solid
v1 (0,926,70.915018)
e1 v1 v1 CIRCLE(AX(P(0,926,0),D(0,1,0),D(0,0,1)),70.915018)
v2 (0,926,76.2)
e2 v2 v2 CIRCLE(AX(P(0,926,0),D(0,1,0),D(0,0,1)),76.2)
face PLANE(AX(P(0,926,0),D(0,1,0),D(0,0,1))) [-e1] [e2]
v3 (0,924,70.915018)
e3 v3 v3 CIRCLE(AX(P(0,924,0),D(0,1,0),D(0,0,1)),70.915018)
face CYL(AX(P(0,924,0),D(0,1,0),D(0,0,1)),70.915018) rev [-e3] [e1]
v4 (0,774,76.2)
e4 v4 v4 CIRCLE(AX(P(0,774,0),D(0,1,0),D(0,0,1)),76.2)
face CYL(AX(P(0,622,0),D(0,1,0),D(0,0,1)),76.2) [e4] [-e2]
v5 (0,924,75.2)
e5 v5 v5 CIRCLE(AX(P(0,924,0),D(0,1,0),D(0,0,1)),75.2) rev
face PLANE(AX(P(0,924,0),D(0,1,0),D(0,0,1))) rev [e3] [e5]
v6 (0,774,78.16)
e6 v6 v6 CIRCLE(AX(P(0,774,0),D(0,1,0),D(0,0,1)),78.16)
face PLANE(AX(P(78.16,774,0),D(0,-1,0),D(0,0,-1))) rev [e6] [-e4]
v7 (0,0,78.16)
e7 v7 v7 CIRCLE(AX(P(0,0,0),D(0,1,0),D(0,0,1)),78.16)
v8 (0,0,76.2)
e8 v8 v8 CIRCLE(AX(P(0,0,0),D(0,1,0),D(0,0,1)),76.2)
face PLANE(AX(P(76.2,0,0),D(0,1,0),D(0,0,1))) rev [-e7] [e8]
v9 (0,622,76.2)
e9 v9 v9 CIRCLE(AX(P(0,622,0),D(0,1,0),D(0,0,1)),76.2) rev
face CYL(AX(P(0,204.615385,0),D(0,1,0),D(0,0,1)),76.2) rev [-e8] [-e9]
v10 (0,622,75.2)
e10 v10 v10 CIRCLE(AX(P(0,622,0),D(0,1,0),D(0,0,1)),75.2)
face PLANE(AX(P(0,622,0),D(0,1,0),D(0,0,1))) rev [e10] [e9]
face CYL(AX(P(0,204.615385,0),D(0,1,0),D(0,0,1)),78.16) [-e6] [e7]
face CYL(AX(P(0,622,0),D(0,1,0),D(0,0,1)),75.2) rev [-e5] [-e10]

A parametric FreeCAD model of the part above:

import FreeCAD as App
import Part
import Sketcher

V = App.Vector


def add_polygon(sketch, points):
    """Adds a closed chain of lines whose ends are joined by coincident constraints."""
    first, n = sketch.GeometryCount, len(points)
    for a, b in zip(points, points[1:] + points[:1]):
        sketch.addGeometry(Part.LineSegment(App.Vector(*a, 0), App.Vector(*b, 0)), False)
    for i in range(n):
        sketch.addConstraint(Sketcher.Constraint("Coincident", first + i, 2, first + (i + 1) % n, 1))

doc = App.newDocument("Part")
body = doc.addObject("PartDesign::Body", "Body")

# Sketch on XY plane
sketch1 = body.newObject("Sketcher::SketchObject", "Sketch")
sketch1.AttachmentSupport = (doc.getObject("XY_Plane"), [""])
sketch1.MapMode = "FlatFace"
add_polygon(sketch1, [(76.2, 774), (76.2, 0), (78.2, 0), (78.2, 774)])  # lines 0-3
sketch1.addConstraint(Sketcher.Constraint("Vertical", 0))
sketch1.addConstraint(Sketcher.Constraint("Horizontal", 1))
sketch1.addConstraint(Sketcher.Constraint("Vertical", 2))
sketch1.addConstraint(Sketcher.Constraint("Horizontal", 3))
sketch1.addConstraint(Sketcher.Constraint("PointOnObject", 0, 2, -1))
sketch1.addConstraint(Sketcher.Constraint("DistanceY", 0, 2, 0, 1, 774.0))
sketch1.addConstraint(Sketcher.Constraint("DistanceX", 1, 1, 1, 2, 1.96))
sketch1.addConstraint(Sketcher.Constraint("DistanceX", -1, 1, 0, 2, 76.2))
revolution = body.newObject("PartDesign::Revolution", "Revolution")
revolution.Profile = sketch1
revolution.ReferenceAxis = (sketch1, ["V_Axis"])
revolution.Angle = 360

# Sketch on XZ plane
sketch2 = body.newObject("Sketcher::SketchObject", "Sketch001")
sketch2.AttachmentSupport = (doc.getObject("XZ_Plane"), [""])
sketch2.MapMode = "FlatFace"
sketch2.AttachmentOffset = App.Placement(V(0, 0, -774), App.Rotation())
sketch2.addGeometry(Part.Circle(V(0, 0, 0), V(0, 0, 1), 76), False)
sketch2.addGeometry(Part.Circle(V(0, 0, 0), V(0, 0, 1), 75), False)
sketch2.addConstraint(Sketcher.Constraint("Coincident", 0, 3, -1, 1))
sketch2.addConstraint(Sketcher.Constraint("Coincident", 1, 3, -1, 1))
sketch2.addConstraint(Sketcher.Constraint("Diameter", 0, 152.4))
sketch2.addConstraint(Sketcher.Constraint("Diameter", 1, 150.4))
pad1 = body.newObject("PartDesign::Pad", "Pad")
pad1.Profile = sketch2
pad1.Type = "TwoLengths"
pad1.Length = 152
pad1.Length2 = 152
pad1.Reversed = True

# Sketch on XZ plane
sketch3 = body.newObject("Sketcher::SketchObject", "Sketch002")
sketch3.AttachmentSupport = (doc.getObject("XZ_Plane"), [""])
sketch3.MapMode = "FlatFace"
sketch3.AttachmentOffset = App.Placement(V(0, 0, -924), App.Rotation())
sketch3.addGeometry(Part.Circle(V(0, 0, 0), V(0, 0, 1), 76), False)
sketch3.addGeometry(Part.Circle(V(0, 0, 0), V(0, 0, 1), 71), False)
sketch3.addConstraint(Sketcher.Constraint("Coincident", 0, 3, -1, 1))
sketch3.addConstraint(Sketcher.Constraint("Coincident", 1, 3, -1, 1))
sketch3.addConstraint(Sketcher.Constraint("Diameter", 0, 152.4))
sketch3.addConstraint(Sketcher.Constraint("Diameter", 1, 141.830036))
pad2 = body.newObject("PartDesign::Pad", "Pad001")
pad2.Profile = sketch3
pad2.Length = 2
pad2.Reversed = True

doc.recompute()
